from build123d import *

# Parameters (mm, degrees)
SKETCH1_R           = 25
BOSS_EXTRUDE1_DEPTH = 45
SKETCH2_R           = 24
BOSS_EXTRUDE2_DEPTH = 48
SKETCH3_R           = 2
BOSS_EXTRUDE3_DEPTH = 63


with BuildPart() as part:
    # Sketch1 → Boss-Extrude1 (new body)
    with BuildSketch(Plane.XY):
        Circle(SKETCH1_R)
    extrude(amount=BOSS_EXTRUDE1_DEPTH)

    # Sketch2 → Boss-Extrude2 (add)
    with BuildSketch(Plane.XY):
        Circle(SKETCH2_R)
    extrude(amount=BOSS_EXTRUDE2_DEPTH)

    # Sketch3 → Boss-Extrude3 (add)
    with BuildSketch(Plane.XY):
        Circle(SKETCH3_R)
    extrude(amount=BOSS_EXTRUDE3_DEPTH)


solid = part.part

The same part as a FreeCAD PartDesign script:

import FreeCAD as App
import Part
import Sketcher
from FreeCAD import Vector

doc = App.newDocument("Part")
params = doc.addObject("Spreadsheet::Sheet", "Params")
for row, (alias, value) in enumerate([
    ("sketch1_diameter", "50 mm"),
    ("pad1_length", "45 mm"),
    ("sketch2_diameter", "48 mm"),
    ("pad2_length", "48 mm"),
    ("sketch3_diameter", "4 mm"),
    ("pad3_length", "63 mm"),
], start=1):
    params.set(f"A{row}", alias)
    params.set(f"B{row}", "=" + value)
    params.setAlias(f"B{row}", alias)

body = doc.addObject("PartDesign::Body", "Body")

# Sketch on XY plane
sketch1 = doc.addObject("Sketcher::SketchObject", "Sketch")
body.addObject(sketch1)
sketch1.AttachmentSupport = (doc.XY_Plane, [""])
sketch1.MapMode = "FlatFace"
sketch1.addGeometry(Part.Circle(Vector(0, 0, 0), Vector(0, 0, 1), 25), False)
sketch1.addConstraint([
    Sketcher.Constraint("Coincident", 0, 3, -1, 1),
    Sketcher.Constraint("Diameter", 0, 50.0),
])
sketch1.setExpression("Constraints[1]", "Params.sketch1_diameter")
pad1 = doc.addObject("PartDesign::Pad", "Pad")
body.addObject(pad1)
pad1.Profile = sketch1
pad1.setExpression("Length", "Params.pad1_length")

# Sketch on XY plane
sketch2 = doc.addObject("Sketcher::SketchObject", "Sketch001")
body.addObject(sketch2)
sketch2.AttachmentSupport = (doc.XY_Plane, [""])
sketch2.MapMode = "FlatFace"
sketch2.addGeometry(Part.Circle(Vector(0, 0, 0), Vector(0, 0, 1), 24), False)
sketch2.addConstraint([
    Sketcher.Constraint("Coincident", 0, 3, -1, 1),
    Sketcher.Constraint("Diameter", 0, 48.0),
])
sketch2.setExpression("Constraints[1]", "Params.sketch2_diameter")
pad2 = doc.addObject("PartDesign::Pad", "Pad001")
body.addObject(pad2)
pad2.Profile = sketch2
pad2.setExpression("Length", "Params.pad2_length")

# Sketch on XY plane
sketch3 = doc.addObject("Sketcher::SketchObject", "Sketch002")
body.addObject(sketch3)
sketch3.AttachmentSupport = (doc.XY_Plane, [""])
sketch3.MapMode = "FlatFace"
sketch3.addGeometry(Part.Circle(Vector(0, 0, 0), Vector(0, 0, 1), 2), False)
sketch3.addConstraint([
    Sketcher.Constraint("Coincident", 0, 3, -1, 1),
    Sketcher.Constraint("Diameter", 0, 4.0),
])
sketch3.setExpression("Constraints[1]", "Params.sketch3_diameter")
pad3 = doc.addObject("PartDesign::Pad", "Pad002")
body.addObject(pad3)
pad3.Profile = sketch3
pad3.setExpression("Length", "Params.pad3_length")

doc.recompute()
